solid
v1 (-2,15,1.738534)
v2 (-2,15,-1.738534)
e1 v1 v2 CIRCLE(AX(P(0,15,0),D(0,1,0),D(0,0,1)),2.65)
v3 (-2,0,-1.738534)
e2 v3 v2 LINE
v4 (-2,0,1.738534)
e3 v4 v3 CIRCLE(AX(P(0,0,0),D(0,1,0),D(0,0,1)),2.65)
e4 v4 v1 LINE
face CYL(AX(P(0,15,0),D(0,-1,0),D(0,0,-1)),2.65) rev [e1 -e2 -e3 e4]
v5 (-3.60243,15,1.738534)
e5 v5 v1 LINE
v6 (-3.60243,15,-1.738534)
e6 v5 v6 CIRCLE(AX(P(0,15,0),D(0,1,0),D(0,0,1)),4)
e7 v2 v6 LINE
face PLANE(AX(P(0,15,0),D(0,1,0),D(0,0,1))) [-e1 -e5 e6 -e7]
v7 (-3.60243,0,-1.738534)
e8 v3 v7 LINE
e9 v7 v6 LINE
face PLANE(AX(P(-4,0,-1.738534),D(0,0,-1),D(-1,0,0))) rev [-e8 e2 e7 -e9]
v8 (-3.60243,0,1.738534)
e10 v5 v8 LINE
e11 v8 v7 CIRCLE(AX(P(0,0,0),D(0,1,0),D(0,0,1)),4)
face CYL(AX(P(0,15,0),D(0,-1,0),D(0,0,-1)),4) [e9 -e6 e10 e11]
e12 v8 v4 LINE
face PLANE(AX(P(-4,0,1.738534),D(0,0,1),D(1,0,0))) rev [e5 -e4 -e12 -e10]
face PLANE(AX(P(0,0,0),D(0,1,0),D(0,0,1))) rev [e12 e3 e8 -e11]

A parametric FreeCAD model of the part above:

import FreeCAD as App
import Part
import Sketcher

V = App.Vector

doc = App.newDocument("Part")
params = doc.addObject("Spreadsheet::Sheet", "Params")
for row, (alias, value) in enumerate([
    ("sketch1_diameter", "8 mm"),
    ("sketch1_diameter2", "5.3 mm"),
    ("pad1_length", "15 mm"),
    ("sketch2_width", "2 mm"),
    ("pocket1_length", "15 mm"),
], start=1):
    params.set(f"A{row}", alias)
    params.set(f"B{row}", "=" + value)
    params.setAlias(f"B{row}", alias)

body = doc.addObject("PartDesign::Body", "Body")

# Sketch on XZ plane
sketch1 = doc.addObject("Sketcher::SketchObject", "Sketch")
body.addObject(sketch1)
sketch1.AttachmentSupport = (doc.XZ_Plane, [""])
sketch1.MapMode = "FlatFace"
sketch1.addGeometry([
    Part.Circle(V(0, 0, 0), V(0, 0, 1), 4),
    Part.Circle(V(0, 0, 0), V(0, 0, 1), 2.65),
], False)
sketch1.addConstraint([
    Sketcher.Constraint("Coincident", 0, 3, -1, 1),
    Sketcher.Constraint("Coincident", 1, 3, -1, 1),
    Sketcher.Constraint("Diameter", 0, 8.0),
    Sketcher.Constraint("Diameter", 1, 5.3),
])
sketch1.setExpression("Constraints[2]", "Params.sketch1_diameter")
sketch1.setExpression("Constraints[3]", "Params.sketch1_diameter2")
pad1 = doc.addObject("PartDesign::Pad", "Pad")
body.addObject(pad1)
pad1.Profile = sketch1
pad1.setExpression("Length", "Params.pad1_length")
pad1.Reversed = True

# Sketch on XZ plane
sketch2 = doc.addObject("Sketcher::SketchObject", "Sketch001")
body.addObject(sketch2)
sketch2.AttachmentSupport = (doc.XZ_Plane, [""])
sketch2.MapMode = "FlatFace"
sketch2.AttachmentOffset = App.Placement(V(0, 0, -15), App.Rotation())
sketch2.addGeometry([
    Part.LineSegment(V(-4, -1.738534, 0), V(-4, 1.738534, 0)),
    Part.LineSegment(V(-4, 1.738534, 0), V(-2, 1.738534, 0)),
    Part.LineSegment(V(-2, 1.738534, 0), V(-2, -1.738534, 0)),
    Part.LineSegment(V(-2, -1.738534, 0), V(-4, -1.738534, 0)),
], False)
sketch2.addConstraint([
    Sketcher.Constraint("Coincident", 0, 2, 1, 1),
    Sketcher.Constraint("Coincident", 1, 2, 2, 1),
    Sketcher.Constraint("Coincident", 2, 2, 3, 1),
    Sketcher.Constraint("Coincident", 3, 2, 0, 1),
    Sketcher.Constraint("Vertical", 0),
    Sketcher.Constraint("Horizontal", 1),
    Sketcher.Constraint("Vertical", 2),
    Sketcher.Constraint("Horizontal", 3),
    Sketcher.Constraint("DistanceX", 1, 1, 1, 2, 2.0),
    Sketcher.Constraint("DistanceX", 0, 2, -1, 1, 4.0),
    Sketcher.Constraint("DistanceY", 0, 1, 0, 2, 3.477068),
    Sketcher.Constraint("DistanceY", -1, 1, 0, 2, 1.738534),
])
sketch2.setExpression("Constraints[8]", "Params.sketch2_width")
pocket1 = doc.addObject("PartDesign::Pocket", "Pocket")
body.addObject(pocket1)
pocket1.Profile = sketch2
pocket1.setExpression("Length", "Params.pocket1_length")
pocket1.Reversed = True

doc.recompute()
